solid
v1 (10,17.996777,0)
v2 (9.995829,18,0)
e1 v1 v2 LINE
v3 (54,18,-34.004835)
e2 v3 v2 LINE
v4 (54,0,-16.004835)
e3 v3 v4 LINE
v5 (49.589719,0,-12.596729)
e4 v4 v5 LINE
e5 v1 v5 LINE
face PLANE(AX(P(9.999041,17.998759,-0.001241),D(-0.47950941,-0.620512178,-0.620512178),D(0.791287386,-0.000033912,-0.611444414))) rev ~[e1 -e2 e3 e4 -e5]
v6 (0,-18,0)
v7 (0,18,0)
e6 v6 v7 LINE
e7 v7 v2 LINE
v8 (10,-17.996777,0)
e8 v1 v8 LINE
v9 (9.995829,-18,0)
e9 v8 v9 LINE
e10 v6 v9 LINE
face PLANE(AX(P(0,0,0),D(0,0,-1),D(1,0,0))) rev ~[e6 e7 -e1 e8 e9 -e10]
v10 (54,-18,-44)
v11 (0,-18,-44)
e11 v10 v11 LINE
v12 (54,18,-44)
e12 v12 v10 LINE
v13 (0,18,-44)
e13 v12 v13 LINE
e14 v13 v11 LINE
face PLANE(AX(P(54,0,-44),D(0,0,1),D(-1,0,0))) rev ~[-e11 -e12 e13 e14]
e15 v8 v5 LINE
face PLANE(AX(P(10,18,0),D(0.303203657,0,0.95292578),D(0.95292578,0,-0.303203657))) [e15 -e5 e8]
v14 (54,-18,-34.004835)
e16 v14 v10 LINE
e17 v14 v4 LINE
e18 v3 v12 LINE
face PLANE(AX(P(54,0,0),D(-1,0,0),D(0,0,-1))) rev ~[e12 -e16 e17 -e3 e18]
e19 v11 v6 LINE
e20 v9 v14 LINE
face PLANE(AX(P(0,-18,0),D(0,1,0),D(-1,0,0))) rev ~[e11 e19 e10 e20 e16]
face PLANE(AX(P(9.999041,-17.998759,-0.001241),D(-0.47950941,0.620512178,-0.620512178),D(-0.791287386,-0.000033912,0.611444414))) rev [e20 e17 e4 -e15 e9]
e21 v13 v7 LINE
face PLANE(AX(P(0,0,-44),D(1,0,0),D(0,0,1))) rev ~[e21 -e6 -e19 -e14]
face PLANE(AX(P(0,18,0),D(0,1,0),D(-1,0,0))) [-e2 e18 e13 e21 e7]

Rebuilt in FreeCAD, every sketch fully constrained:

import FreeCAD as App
import Part
import Sketcher


def add_polygon(sketch, points):
    """Adds a closed chain of lines whose ends are joined by coincident constraints."""
    first, n = sketch.GeometryCount, len(points)
    for a, b in zip(points, points[1:] + points[:1]):
        sketch.addGeometry(Part.LineSegment(App.Vector(*a, 0), App.Vector(*b, 0)), False)
    for i in range(n):
        sketch.addConstraint(Sketcher.Constraint("Coincident", first + i, 2, first + (i + 1) % n, 1))

doc = App.newDocument("Part")
body = doc.addObject("PartDesign::Body", "Body")

# Sketch on XZ plane
sketch1 = body.newObject("Sketcher::SketchObject", "Sketch")
sketch1.AttachmentSupport = (doc.getObject("XZ_Plane"), [""])
sketch1.MapMode = "FlatFace"
add_polygon(sketch1, [(0, -44), (0, 0), (54, 0), (54, -44)])  # lines 0-3
sketch1.addConstraint([
    Sketcher.Constraint("Vertical", 0),
    Sketcher.Constraint("Horizontal", 1),
    Sketcher.Constraint("Vertical", 2),
    Sketcher.Constraint("Horizontal", 3),
    Sketcher.Constraint("Coincident", 0, 2, -1, 1),
    Sketcher.Constraint("DistanceX", 1, 1, 1, 2, 54.0),
    Sketcher.Constraint("DistanceY", 0, 1, 0, 2, 44.0),
])
pad1 = body.newObject("PartDesign::Pad", "Pad")
pad1.Profile = sketch1
pad1.Length = 36
pad1.Midplane = True

# Sketch on XZ plane
sketch2 = body.newObject("Sketcher::SketchObject", "Sketch001")
sketch2.AttachmentSupport = (doc.getObject("XZ_Plane"), [""])
sketch2.MapMode = "FlatFace"
sketch2.AttachmentOffset = App.Placement(App.Vector(0, 0, -18), App.Rotation())
add_polygon(sketch2, [(54, -14), (10, 0), (54, 0)])  # lines 0-2
sketch2.addConstraint([
    Sketcher.Constraint("Horizontal", 1),
    Sketcher.Constraint("Vertical", 2),
    Sketcher.Constraint("PointOnObject", 0, 2, -1),
    Sketcher.Constraint("DistanceX", -1, 1, 0, 2, 10.0),
    Sketcher.Constraint("DistanceX", 1, 1, 1, 2, 44.0),
    Sketcher.Constraint("DistanceY", 2, 2, 2, 1, 14.0),
])
pocket1 = body.newObject("PartDesign::Pocket", "Pocket")
pocket1.Profile = sketch2
pocket1.Length = 40
pocket1.Reversed = True

# Sketch on an angled plane
sketch3 = body.newObject("Sketcher::SketchObject", "Sketch002")
sketch3.Placement = App.Placement(App.Vector(10, 18, 0), App.Rotation(App.Vector(0.791287386, -0.000033912, -0.611444414), App.Vector(0.379387662, -0.78419681, 0.49101972), App.Vector(-0.47950941, -0.620512178, -0.620512178), "ZXY"))
add_polygon(sketch3, [(-15, 29), (-15, -12), (94, -12), (94, 29)])  # lines 0-3
sketch3.addConstraint([
    Sketcher.Constraint("Vertical", 0),
    Sketcher.Constraint("Horizontal", 1),
    Sketcher.Constraint("Vertical", 2),
    Sketcher.Constraint("Horizontal", 3),
    Sketcher.Constraint("DistanceX", 1, 1, 1, 2, 108.8713),
    Sketcher.Constraint("DistanceY", 0, 2, 0, 1, 41.1384),
    Sketcher.Constraint("DistanceX", -1, 1, 1, 2, 93.717),
    Sketcher.Constraint("DistanceY", 0, 2, -1, 1, 12.3218),
])
pocket2 = body.newObject("PartDesign::Pocket", "Pocket001")
pocket2.Profile = sketch3
pocket2.Length = 40
doc.recompute()

mirrored = body.newObject("PartDesign::Mirrored", "Mirrored")
mirrored.Originals = [pocket2]
mirrored.MirrorPlane = (doc.getObject("XZ_Plane"), [""])
body.Tip = mirrored

doc.recompute()
